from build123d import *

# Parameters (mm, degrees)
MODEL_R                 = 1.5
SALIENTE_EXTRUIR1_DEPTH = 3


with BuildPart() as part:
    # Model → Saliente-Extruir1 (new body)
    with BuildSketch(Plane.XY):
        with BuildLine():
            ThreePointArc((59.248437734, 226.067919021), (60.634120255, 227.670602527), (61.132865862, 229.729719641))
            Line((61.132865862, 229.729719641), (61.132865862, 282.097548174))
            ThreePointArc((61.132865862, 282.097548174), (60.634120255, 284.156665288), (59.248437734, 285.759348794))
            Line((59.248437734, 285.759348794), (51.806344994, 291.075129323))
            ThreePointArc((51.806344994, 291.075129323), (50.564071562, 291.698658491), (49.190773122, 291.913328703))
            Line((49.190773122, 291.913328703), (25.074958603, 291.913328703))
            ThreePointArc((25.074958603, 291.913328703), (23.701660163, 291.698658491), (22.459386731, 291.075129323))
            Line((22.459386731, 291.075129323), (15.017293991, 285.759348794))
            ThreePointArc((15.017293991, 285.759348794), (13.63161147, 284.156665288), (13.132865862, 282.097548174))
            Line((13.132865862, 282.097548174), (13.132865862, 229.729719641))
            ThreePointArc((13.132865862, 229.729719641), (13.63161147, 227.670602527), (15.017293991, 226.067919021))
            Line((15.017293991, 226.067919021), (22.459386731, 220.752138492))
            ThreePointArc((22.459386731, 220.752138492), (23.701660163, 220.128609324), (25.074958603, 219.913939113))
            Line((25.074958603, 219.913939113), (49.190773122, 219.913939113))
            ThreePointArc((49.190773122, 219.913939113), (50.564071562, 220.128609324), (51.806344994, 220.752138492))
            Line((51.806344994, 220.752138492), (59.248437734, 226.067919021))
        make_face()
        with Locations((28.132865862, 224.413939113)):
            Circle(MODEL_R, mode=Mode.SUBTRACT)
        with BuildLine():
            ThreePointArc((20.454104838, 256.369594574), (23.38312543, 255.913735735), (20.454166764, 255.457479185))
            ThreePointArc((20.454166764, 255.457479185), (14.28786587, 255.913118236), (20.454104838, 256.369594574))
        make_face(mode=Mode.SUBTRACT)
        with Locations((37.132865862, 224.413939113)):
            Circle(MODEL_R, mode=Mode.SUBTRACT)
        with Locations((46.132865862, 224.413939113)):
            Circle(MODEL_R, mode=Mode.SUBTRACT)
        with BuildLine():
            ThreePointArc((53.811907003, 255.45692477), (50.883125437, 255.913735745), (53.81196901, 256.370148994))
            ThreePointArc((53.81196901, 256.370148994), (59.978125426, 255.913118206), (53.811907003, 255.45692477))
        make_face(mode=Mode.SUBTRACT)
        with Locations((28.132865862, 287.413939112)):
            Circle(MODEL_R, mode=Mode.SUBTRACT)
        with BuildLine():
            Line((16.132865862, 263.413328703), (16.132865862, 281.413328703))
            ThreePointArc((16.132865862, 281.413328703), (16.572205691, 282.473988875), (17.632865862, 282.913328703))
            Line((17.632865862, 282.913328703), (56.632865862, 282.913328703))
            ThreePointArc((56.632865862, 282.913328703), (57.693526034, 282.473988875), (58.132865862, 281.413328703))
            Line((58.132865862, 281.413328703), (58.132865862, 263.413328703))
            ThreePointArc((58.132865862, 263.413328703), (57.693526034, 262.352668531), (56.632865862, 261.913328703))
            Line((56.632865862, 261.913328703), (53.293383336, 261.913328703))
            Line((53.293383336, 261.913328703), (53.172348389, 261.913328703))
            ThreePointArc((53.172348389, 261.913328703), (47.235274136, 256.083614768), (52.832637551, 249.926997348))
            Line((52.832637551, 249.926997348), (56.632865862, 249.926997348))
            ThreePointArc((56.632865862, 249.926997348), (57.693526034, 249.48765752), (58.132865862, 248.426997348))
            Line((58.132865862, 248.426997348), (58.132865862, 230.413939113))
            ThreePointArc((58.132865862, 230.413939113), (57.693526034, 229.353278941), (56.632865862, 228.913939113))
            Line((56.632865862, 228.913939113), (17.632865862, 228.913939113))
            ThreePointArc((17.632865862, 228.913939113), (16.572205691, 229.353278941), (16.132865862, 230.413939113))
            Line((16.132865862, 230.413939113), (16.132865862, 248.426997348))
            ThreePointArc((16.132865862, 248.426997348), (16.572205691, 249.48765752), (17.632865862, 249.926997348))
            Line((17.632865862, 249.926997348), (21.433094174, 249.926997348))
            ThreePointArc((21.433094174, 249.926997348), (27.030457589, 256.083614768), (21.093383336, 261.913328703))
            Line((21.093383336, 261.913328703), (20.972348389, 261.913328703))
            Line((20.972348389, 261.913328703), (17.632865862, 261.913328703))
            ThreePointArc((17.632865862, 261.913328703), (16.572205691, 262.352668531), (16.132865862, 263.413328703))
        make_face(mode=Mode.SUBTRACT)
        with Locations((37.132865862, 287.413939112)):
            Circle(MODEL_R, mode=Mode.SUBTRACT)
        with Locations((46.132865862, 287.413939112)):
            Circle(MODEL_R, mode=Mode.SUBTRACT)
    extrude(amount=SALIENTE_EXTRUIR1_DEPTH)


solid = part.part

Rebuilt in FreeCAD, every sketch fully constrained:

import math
import FreeCAD as App
import Part
import Sketcher
from FreeCAD import Vector

doc = App.newDocument("Part")
params = doc.addObject("Spreadsheet::Sheet", "Params")
for row, (alias, value) in enumerate([
    ("sketch1_diameter", "3 mm"),
    ("sketch1_radius", "6 mm"),
    ("sketch1_radius2", "4.5 mm"),
    ("sketch1_radius3", "3.1 mm"),
    ("sketch1_width", "39 mm"),
    ("pad1_length", "3 mm"),
], start=1):
    params.set(f"A{row}", alias)
    params.set(f"B{row}", "=" + value)
    params.setAlias(f"B{row}", alias)

body = doc.addObject("PartDesign::Body", "Body")

# Sketch on XY plane
sketch1 = body.newObject("Sketcher::SketchObject", "Sketch")
sketch1.AttachmentSupport = (doc.getObject("XY_Plane"), [""])
sketch1.MapMode = "FlatFace"
sketch1.addGeometry([
    Part.ArcOfCircle(Part.Circle(Vector(56.632866, 229.72972, 0), Vector(0, 0, 1), 4.5), math.radians(-54.462322), math.radians(0)),  # 0
    Part.LineSegment(Vector(61.132866, 229.72972, 0), Vector(61.132866, 282.097548, 0)),  # 1
    Part.ArcOfCircle(Part.Circle(Vector(56.632866, 282.097548, 0), Vector(0, 0, 1), 4.5), math.radians(0), math.radians(54.462322)),  # 2
    Part.LineSegment(Vector(59.248438, 285.759349, 0), Vector(51.806345, 291.075129, 0)),  # 3
    Part.ArcOfCircle(Part.Circle(Vector(49.190773, 287.413329, 0), Vector(0, 0, 1), 4.5), math.radians(54.462322), math.radians(90)),  # 4
    Part.LineSegment(Vector(49.190773, 291.913329, 0), Vector(25.074959, 291.913329, 0)),  # 5
    Part.ArcOfCircle(Part.Circle(Vector(25.074959, 287.413329, 0), Vector(0, 0, 1), 4.5), math.radians(90), math.radians(125.537678)),  # 6
    Part.LineSegment(Vector(22.459387, 291.075129, 0), Vector(15.017294, 285.759349, 0)),  # 7
    Part.ArcOfCircle(Part.Circle(Vector(17.632866, 282.097548, 0), Vector(0, 0, 1), 4.5), math.radians(125.537678), math.radians(180)),  # 8
    Part.LineSegment(Vector(13.132866, 282.097548, 0), Vector(13.132866, 229.72972, 0)),  # 9
    Part.ArcOfCircle(Part.Circle(Vector(17.632866, 229.72972, 0), Vector(0, 0, 1), 4.5), math.radians(180), math.radians(234.462322)),  # 10
    Part.LineSegment(Vector(15.017294, 226.067919, 0), Vector(22.459387, 220.752138, 0)),  # 11
    Part.ArcOfCircle(Part.Circle(Vector(25.074959, 224.413939, 0), Vector(0, 0, 1), 4.5), math.radians(-125.537678), math.radians(-90)),  # 12
    Part.LineSegment(Vector(25.074959, 219.913939, 0), Vector(49.190773, 219.913939, 0)),  # 13
    Part.ArcOfCircle(Part.Circle(Vector(49.190773, 224.413939, 0), Vector(0, 0, 1), 4.5), math.radians(-90), math.radians(-54.462322)),  # 14
    Part.LineSegment(Vector(51.806345, 220.752138, 0), Vector(59.248438, 226.067919, 0)),  # 15
    Part.Circle(Vector(28.132866, 224.413939, 0), Vector(0, 0, 1), 1.5),  # 16
    Part.Circle(Vector(37.132866, 224.413939, 0), Vector(0, 0, 1), 1.5),  # 17
    Part.ArcOfCircle(Part.Circle(Vector(17.387866, 255.913329, 0), Vector(0, 0, 1), 3.1), math.radians(8.463686), math.radians(351.544094)),  # 18
    Part.ArcOfCircle(Part.Circle(Vector(21.883125, 255.913634, 0), Vector(0, 0, 1), 1.5), math.radians(-162.295785), math.radians(162.303565)),  # 19
    Part.ArcOfCircle(Part.Circle(Vector(17.632866, 263.413329, 0), Vector(0, 0, 1), 1.5), math.radians(-180), math.radians(-90)),  # 20
    Part.LineSegment(Vector(16.132866, 263.413329, 0), Vector(16.132866, 281.413329, 0)),  # 21
    Part.ArcOfCircle(Part.Circle(Vector(17.632866, 281.413329, 0), Vector(0, 0, 1), 1.5), math.radians(90), math.radians(180)),  # 22
    Part.LineSegment(Vector(17.632866, 282.913329, 0), Vector(56.632866, 282.913329, 0)),  # 23
    Part.ArcOfCircle(Part.Circle(Vector(56.632866, 281.413329, 0), Vector(0, 0, 1), 1.5), math.radians(0), math.radians(90)),  # 24
    Part.LineSegment(Vector(58.132866, 281.413329, 0), Vector(58.132866, 263.413329, 0)),  # 25
    Part.ArcOfCircle(Part.Circle(Vector(56.632866, 263.413329, 0), Vector(0, 0, 1), 1.5), math.radians(-90), math.radians(0)),  # 26
    Part.LineSegment(Vector(56.632866, 261.913329, 0), Vector(53.172348, 261.913329, 0)),  # 27
    Part.ArcOfCircle(Part.Circle(Vector(53.232866, 255.913634, 0), Vector(0, 0, 1), 6), math.radians(90.577909), math.radians(266.175261)),  # 28
    Part.LineSegment(Vector(52.832638, 249.926997, 0), Vector(56.632866, 249.926997, 0)),  # 29
    Part.ArcOfCircle(Part.Circle(Vector(56.632866, 248.426997, 0), Vector(0, 0, 1), 1.5), math.radians(0), math.radians(90)),  # 30
    Part.LineSegment(Vector(58.132866, 248.426997, 0), Vector(58.132866, 230.413939, 0)),  # 31
    Part.ArcOfCircle(Part.Circle(Vector(56.632866, 230.413939, 0), Vector(0, 0, 1), 1.5), math.radians(-90), math.radians(0)),  # 32
    Part.LineSegment(Vector(56.632866, 228.913939, 0), Vector(17.632866, 228.913939, 0)),  # 33
    Part.ArcOfCircle(Part.Circle(Vector(17.632866, 230.413939, 0), Vector(0, 0, 1), 1.5), math.radians(-180), math.radians(-90)),  # 34
    Part.LineSegment(Vector(16.132866, 230.413939, 0), Vector(16.132866, 248.426997, 0)),  # 35
    Part.ArcOfCircle(Part.Circle(Vector(17.632866, 248.426997, 0), Vector(0, 0, 1), 1.5), math.radians(90), math.radians(180)),  # 36
    Part.LineSegment(Vector(17.632866, 249.926997, 0), Vector(21.433094, 249.926997, 0)),  # 37
    Part.ArcOfCircle(Part.Circle(Vector(21.032866, 255.913634, 0), Vector(0, 0, 1), 6), math.radians(-86.175261), math.radians(89.422091)),  # 38
    Part.LineSegment(Vector(21.093383, 261.913329, 0), Vector(17.632866, 261.913329, 0)),  # 39
    Part.Circle(Vector(46.132866, 224.413939, 0), Vector(0, 0, 1), 1.5),  # 40
    Part.ArcOfCircle(Part.Circle(Vector(56.878125, 255.913329, 0), Vector(0, 0, 1), 3.1), math.radians(-171.533735), math.radians(171.525954)),  # 41
    Part.ArcOfCircle(Part.Circle(Vector(52.383125, 255.913634, 0), Vector(0, 0, 1), 1.5), math.radians(17.718666), math.radians(342.273554)),  # 42
    Part.Circle(Vector(28.132866, 287.413939, 0), Vector(0, 0, 1), 1.5),  # 43
    Part.Circle(Vector(37.132866, 287.413939, 0), Vector(0, 0, 1), 1.5),  # 44
    Part.Circle(Vector(46.132866, 287.413939, 0), Vector(0, 0, 1), 1.5),  # 45
], False)
sketch1.addConstraint([
    Sketcher.Constraint("Tangent", 0, 2, 1, 1),
    Sketcher.Constraint("Tangent", 1, 2, 2, 1),
    Sketcher.Constraint("Tangent", 2, 2, 3, 1),
    Sketcher.Constraint("Tangent", 3, 2, 4, 1),
    Sketcher.Constraint("Tangent", 4, 2, 5, 1),
    Sketcher.Constraint("Tangent", 5, 2, 6, 1),
    Sketcher.Constraint("Tangent", 6, 2, 7, 1),
    Sketcher.Constraint("Tangent", 7, 2, 8, 1),
    Sketcher.Constraint("Tangent", 8, 2, 9, 1),
    Sketcher.Constraint("Tangent", 9, 2, 10, 1),
    Sketcher.Constraint("Tangent", 10, 2, 11, 1),
    Sketcher.Constraint("Tangent", 11, 2, 12, 1),
    Sketcher.Constraint("Tangent", 12, 2, 13, 1),
    Sketcher.Constraint("Tangent", 13, 2, 14, 1),
    Sketcher.Constraint("Tangent", 14, 2, 15, 1),
    Sketcher.Constraint("Tangent", 15, 2, 0, 1),
    Sketcher.Constraint("Coincident", 18, 1, 19, 2),
    Sketcher.Constraint("Coincident", 19, 1, 18, 2),
    Sketcher.Constraint("Tangent", 20, 1, 21, 1),
    Sketcher.Constraint("Tangent", 21, 2, 22, 2),
    Sketcher.Constraint("Tangent", 22, 1, 23, 1),
    Sketcher.Constraint("Tangent", 23, 2, 24, 2),
    Sketcher.Constraint("Tangent", 24, 1, 25, 1),
    Sketcher.Constraint("Tangent", 25, 2, 26, 2),
    Sketcher.Constraint("Tangent", 26, 1, 27, 1),
    Sketcher.Constraint("Coincident", 27, 2, 28, 1),
    Sketcher.Constraint("Coincident", 28, 2, 29, 1),
    Sketcher.Constraint("Tangent", 29, 2, 30, 2),
    Sketcher.Constraint("Tangent", 30, 1, 31, 1),
    Sketcher.Constraint("Tangent", 31, 2, 32, 2),
    Sketcher.Constraint("Tangent", 32, 1, 33, 1),
    Sketcher.Constraint("Tangent", 33, 2, 34, 2),
    Sketcher.Constraint("Tangent", 34, 1, 35, 1),
    Sketcher.Constraint("Tangent", 35, 2, 36, 2),
    Sketcher.Constraint("Tangent", 36, 1, 37, 1),
    Sketcher.Constraint("Coincident", 37, 2, 38, 1),
    Sketcher.Constraint("Coincident", 38, 2, 39, 1),
    Sketcher.Constraint("Tangent", 39, 2, 20, 2),
    Sketcher.Constraint("Coincident", 41, 1, 42, 2),
    Sketcher.Constraint("Coincident", 42, 1, 41, 2),
    Sketcher.Constraint("Vertical", 1),
    Sketcher.Constraint("Horizontal", 5),
    Sketcher.Constraint("Vertical", 9),
    Sketcher.Constraint("Horizontal", 13),
    Sketcher.Constraint("Vertical", 21),
    Sketcher.Constraint("Horizontal", 23),
    Sketcher.Constraint("Vertical", 25),
    Sketcher.Constraint("Horizontal", 27),
    Sketcher.Constraint("Horizontal", 29),
    Sketcher.Constraint("Vertical", 31),
    Sketcher.Constraint("Horizontal", 33),
    Sketcher.Constraint("Vertical", 35),
    Sketcher.Constraint("Horizontal", 37),
    Sketcher.Constraint("Horizontal", 39),
    Sketcher.Constraint("Equal", 0, 2),
    Sketcher.Constraint("Equal", 2, 4),
    Sketcher.Constraint("Equal", 4, 6),
    Sketcher.Constraint("Equal", 6, 8),
    Sketcher.Constraint("Equal", 8, 10),
    Sketcher.Constraint("Equal", 10, 12),
    Sketcher.Constraint("Equal", 12, 14),
    Sketcher.Constraint("Equal", 16, 17),
    Sketcher.Constraint("Equal", 17, 19),
    Sketcher.Constraint("Equal", 19, 20),
    Sketcher.Constraint("Equal", 20, 22),
    Sketcher.Constraint("Equal", 22, 24),
    Sketcher.Constraint("Equal", 24, 26),
    Sketcher.Constraint("Equal", 26, 30),
    Sketcher.Constraint("Equal", 30, 32),
    Sketcher.Constraint("Equal", 32, 34),
    Sketcher.Constraint("Equal", 34, 36),
    Sketcher.Constraint("Equal", 28, 38),
    Sketcher.Constraint("Equal", 36, 40),
    Sketcher.Constraint("Equal", 18, 41),
    Sketcher.Constraint("Equal", 40, 42),
    Sketcher.Constraint("Equal", 42, 43),
    Sketcher.Constraint("Equal", 43, 44),
    Sketcher.Constraint("Equal", 44, 45),
    Sketcher.Constraint("Parallel", 3, 11),
    Sketcher.Constraint("Parallel", 7, 15),
    Sketcher.Constraint("Horizontal", 2, 3, 8, 3),
    Sketcher.Constraint("Horizontal", 0, 3, 10, 3),
    Sketcher.Constraint("Horizontal", 14, 3, 16, 3),
    Sketcher.Constraint("Horizontal", 16, 3, 17, 3),
    Sketcher.Constraint("Horizontal", 20, 3, 26, 3),
    Sketcher.Constraint("Horizontal", 19, 3, 28, 3),
    Sketcher.Constraint("Horizontal", 30, 3, 36, 3),
    Sketcher.Constraint("Horizontal", 28, 3, 38, 3),
    Sketcher.Constraint("Horizontal", 17, 3, 40, 3),
    Sketcher.Constraint("Horizontal", 18, 3, 41, 3),
    Sketcher.Constraint("Horizontal", 38, 3, 42, 3),
    Sketcher.Constraint("Horizontal", 43, 3, 44, 3),
    Sketcher.Constraint("Horizontal", 44, 3, 45, 3),
    Sketcher.Constraint("Horizontal", 3, 2, 6, 2),
    Sketcher.Constraint("Vertical", 6, 3, 12, 3),
    Sketcher.Constraint("Vertical", 10, 3, 20, 3),
    Sketcher.Constraint("Vertical", 2, 3, 24, 3),
    Sketcher.Constraint("Vertical", 26, 3, 30, 3),
    Sketcher.Constraint("Vertical", 22, 3, 34, 3),
    Sketcher.Constraint("Vertical", 16, 3, 43, 3),
    Sketcher.Constraint("Vertical", 17, 3, 44, 3),
    Sketcher.Constraint("Vertical", 40, 3, 45, 3),
    Sketcher.Constraint("Equal", 29, 37),
    Sketcher.Constraint("Diameter", 16, 3.0),
    Sketcher.Constraint("Radius", 28, 6.0),
    Sketcher.Constraint("Radius", 0, 4.5),
    Sketcher.Constraint("Radius", 18, 3.1),
    Sketcher.Constraint("DistanceX", 23, 1, 23, 2, 39.0),
    Sketcher.Constraint("DistanceY", 21, 1, 21, 2, 18.0),
    Sketcher.Constraint("DistanceX", 29, 1, 29, 2, 3.800228),
    Sketcher.Constraint("DistanceY", 1, 1, 1, 2, 52.367829),
    Sketcher.Constraint("DistanceY", 31, 2, 31, 1, 18.013058),
    Sketcher.Constraint("DistanceX", 5, 2, 5, 1, 24.115815),
    Sketcher.Constraint("DistanceX", 27, 2, 27, 1, 3.460517),
    Sketcher.Constraint("DistanceY", -1, 1, 0, 3, 229.72972),
    Sketcher.Constraint("DistanceY", -1, 1, 4, 3, 287.413329),
    Sketcher.Constraint("DistanceX", -1, 1, 6, 3, 25.074959),
    Sketcher.Constraint("DistanceY", -1, 1, 18, 3, 255.913329),
    Sketcher.Constraint("DistanceY", -1, 1, 20, 3, 263.413329),
    Sketcher.Constraint("DistanceY", -1, 1, 32, 3, 230.413939),
    Sketcher.Constraint("DistanceY", -1, 1, 43, 3, 287.413939),
    Sketcher.Constraint("DistanceY", -1, 1, 19, 1, 255.457479),
    Sketcher.Constraint("DistanceX", -1, 1, 42, 1, 53.811969),
    Sketcher.Constraint("DistanceY", -1, 1, 42, 1, 256.370149),
    Sketcher.Constraint("DistanceX", -1, 1, 16, 3, 28.132866),
    Sketcher.Constraint("DistanceX", -1, 1, 17, 3, 37.132866),
    Sketcher.Constraint("DistanceX", -1, 1, 18, 3, 17.387866),
    Sketcher.Constraint("DistanceX", -1, 1, 40, 3, 46.132866),
])
sketch1.setExpression("Constraints[103]", "Params.sketch1_diameter")
sketch1.setExpression("Constraints[104]", "Params.sketch1_radius")
sketch1.setExpression("Constraints[105]", "Params.sketch1_radius2")
sketch1.setExpression("Constraints[106]", "Params.sketch1_radius3")
sketch1.setExpression("Constraints[107]", "Params.sketch1_width")
pad1 = body.newObject("PartDesign::Pad", "Pad")
pad1.Profile = sketch1
pad1.setExpression("Length", "Params.pad1_length")

doc.recompute()
